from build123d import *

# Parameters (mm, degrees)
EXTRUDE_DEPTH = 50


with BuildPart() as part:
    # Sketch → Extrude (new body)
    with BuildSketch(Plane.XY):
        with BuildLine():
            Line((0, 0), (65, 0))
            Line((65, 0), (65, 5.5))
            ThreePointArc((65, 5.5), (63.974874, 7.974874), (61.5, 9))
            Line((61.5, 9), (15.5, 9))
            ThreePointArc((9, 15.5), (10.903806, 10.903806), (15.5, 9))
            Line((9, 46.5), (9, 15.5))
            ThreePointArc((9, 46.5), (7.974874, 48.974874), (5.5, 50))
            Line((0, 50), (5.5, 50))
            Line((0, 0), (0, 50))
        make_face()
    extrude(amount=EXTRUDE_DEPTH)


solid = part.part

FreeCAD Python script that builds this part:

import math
import FreeCAD as App
import Part
import Sketcher

V = App.Vector

doc = App.newDocument("Part")
body = doc.addObject("PartDesign::Body", "Body")

# Sketch on XY plane
sketch1 = body.newObject("Sketcher::SketchObject", "Sketch")
sketch1.AttachmentSupport = (doc.getObject("XY_Plane"), [""])
sketch1.MapMode = "FlatFace"
sketch1.addGeometry(Part.LineSegment(V(0, 0, 0), V(65, 0, 0)), False)
sketch1.addGeometry(Part.LineSegment(V(65, 0, 0), V(65, 5.5, 0)), False)
sketch1.addGeometry(Part.ArcOfCircle(Part.Circle(V(61.500001, 5.500001, 0), V(0, 0, 1), 3.499999), math.radians(-0.000015), math.radians(90.000015)), False)
sketch1.addGeometry(Part.LineSegment(V(61.5, 9, 0), V(15.5, 9, 0)), False)
sketch1.addGeometry(Part.ArcOfCircle(Part.Circle(V(15.5, 15.5, 0), V(0, 0, 1), 6.5), math.radians(-179.999998), math.radians(-90.000002)), False)
sketch1.addGeometry(Part.LineSegment(V(9, 15.5, 0), V(9, 46.5, 0)), False)
sketch1.addGeometry(Part.ArcOfCircle(Part.Circle(V(5.500001, 46.500001, 0), V(0, 0, 1), 3.499999), math.radians(-0.000015), math.radians(90.000015)), False)
sketch1.addGeometry(Part.LineSegment(V(5.5, 50, 0), V(0, 50, 0)), False)
sketch1.addGeometry(Part.LineSegment(V(0, 50, 0), V(0, 0, 0)), False)
sketch1.addConstraint(Sketcher.Constraint("Coincident", 0, 2, 1, 1))
sketch1.addConstraint(Sketcher.Constraint("Tangent", 1, 2, 2, 1))
sketch1.addConstraint(Sketcher.Constraint("Tangent", 2, 2, 3, 1))
sketch1.addConstraint(Sketcher.Constraint("Tangent", 3, 2, 4, 2))
sketch1.addConstraint(Sketcher.Constraint("Tangent", 4, 1, 5, 1))
sketch1.addConstraint(Sketcher.Constraint("Tangent", 5, 2, 6, 1))
sketch1.addConstraint(Sketcher.Constraint("Tangent", 6, 2, 7, 1))
sketch1.addConstraint(Sketcher.Constraint("Coincident", 7, 2, 8, 1))
sketch1.addConstraint(Sketcher.Constraint("Coincident", 8, 2, 0, 1))
sketch1.addConstraint(Sketcher.Constraint("Horizontal", 0))
sketch1.addConstraint(Sketcher.Constraint("Vertical", 1))
sketch1.addConstraint(Sketcher.Constraint("Horizontal", 3))
sketch1.addConstraint(Sketcher.Constraint("Vertical", 5))
sketch1.addConstraint(Sketcher.Constraint("Horizontal", 7))
sketch1.addConstraint(Sketcher.Constraint("Vertical", 8))
sketch1.addConstraint(Sketcher.Constraint("Coincident", 8, 2, -1, 1))
sketch1.addConstraint(Sketcher.Constraint("Equal", 2, 6))
sketch1.addConstraint(Sketcher.Constraint("Equal", 7, 1))
sketch1.addConstraint(Sketcher.Constraint("Radius", 2, 3.499999))
sketch1.addConstraint(Sketcher.Constraint("Radius", 4, 6.5))
sketch1.addConstraint(Sketcher.Constraint("DistanceX", 0, 1, 0, 2, 65.0))
sketch1.addConstraint(Sketcher.Constraint("DistanceX", 3, 2, 3, 1, 46.0))
sketch1.addConstraint(Sketcher.Constraint("DistanceY", 5, 1, 5, 2, 31.0))
pad1 = body.newObject("PartDesign::Pad", "Pad")
pad1.Profile = sketch1
pad1.Length = 50

doc.recompute()
